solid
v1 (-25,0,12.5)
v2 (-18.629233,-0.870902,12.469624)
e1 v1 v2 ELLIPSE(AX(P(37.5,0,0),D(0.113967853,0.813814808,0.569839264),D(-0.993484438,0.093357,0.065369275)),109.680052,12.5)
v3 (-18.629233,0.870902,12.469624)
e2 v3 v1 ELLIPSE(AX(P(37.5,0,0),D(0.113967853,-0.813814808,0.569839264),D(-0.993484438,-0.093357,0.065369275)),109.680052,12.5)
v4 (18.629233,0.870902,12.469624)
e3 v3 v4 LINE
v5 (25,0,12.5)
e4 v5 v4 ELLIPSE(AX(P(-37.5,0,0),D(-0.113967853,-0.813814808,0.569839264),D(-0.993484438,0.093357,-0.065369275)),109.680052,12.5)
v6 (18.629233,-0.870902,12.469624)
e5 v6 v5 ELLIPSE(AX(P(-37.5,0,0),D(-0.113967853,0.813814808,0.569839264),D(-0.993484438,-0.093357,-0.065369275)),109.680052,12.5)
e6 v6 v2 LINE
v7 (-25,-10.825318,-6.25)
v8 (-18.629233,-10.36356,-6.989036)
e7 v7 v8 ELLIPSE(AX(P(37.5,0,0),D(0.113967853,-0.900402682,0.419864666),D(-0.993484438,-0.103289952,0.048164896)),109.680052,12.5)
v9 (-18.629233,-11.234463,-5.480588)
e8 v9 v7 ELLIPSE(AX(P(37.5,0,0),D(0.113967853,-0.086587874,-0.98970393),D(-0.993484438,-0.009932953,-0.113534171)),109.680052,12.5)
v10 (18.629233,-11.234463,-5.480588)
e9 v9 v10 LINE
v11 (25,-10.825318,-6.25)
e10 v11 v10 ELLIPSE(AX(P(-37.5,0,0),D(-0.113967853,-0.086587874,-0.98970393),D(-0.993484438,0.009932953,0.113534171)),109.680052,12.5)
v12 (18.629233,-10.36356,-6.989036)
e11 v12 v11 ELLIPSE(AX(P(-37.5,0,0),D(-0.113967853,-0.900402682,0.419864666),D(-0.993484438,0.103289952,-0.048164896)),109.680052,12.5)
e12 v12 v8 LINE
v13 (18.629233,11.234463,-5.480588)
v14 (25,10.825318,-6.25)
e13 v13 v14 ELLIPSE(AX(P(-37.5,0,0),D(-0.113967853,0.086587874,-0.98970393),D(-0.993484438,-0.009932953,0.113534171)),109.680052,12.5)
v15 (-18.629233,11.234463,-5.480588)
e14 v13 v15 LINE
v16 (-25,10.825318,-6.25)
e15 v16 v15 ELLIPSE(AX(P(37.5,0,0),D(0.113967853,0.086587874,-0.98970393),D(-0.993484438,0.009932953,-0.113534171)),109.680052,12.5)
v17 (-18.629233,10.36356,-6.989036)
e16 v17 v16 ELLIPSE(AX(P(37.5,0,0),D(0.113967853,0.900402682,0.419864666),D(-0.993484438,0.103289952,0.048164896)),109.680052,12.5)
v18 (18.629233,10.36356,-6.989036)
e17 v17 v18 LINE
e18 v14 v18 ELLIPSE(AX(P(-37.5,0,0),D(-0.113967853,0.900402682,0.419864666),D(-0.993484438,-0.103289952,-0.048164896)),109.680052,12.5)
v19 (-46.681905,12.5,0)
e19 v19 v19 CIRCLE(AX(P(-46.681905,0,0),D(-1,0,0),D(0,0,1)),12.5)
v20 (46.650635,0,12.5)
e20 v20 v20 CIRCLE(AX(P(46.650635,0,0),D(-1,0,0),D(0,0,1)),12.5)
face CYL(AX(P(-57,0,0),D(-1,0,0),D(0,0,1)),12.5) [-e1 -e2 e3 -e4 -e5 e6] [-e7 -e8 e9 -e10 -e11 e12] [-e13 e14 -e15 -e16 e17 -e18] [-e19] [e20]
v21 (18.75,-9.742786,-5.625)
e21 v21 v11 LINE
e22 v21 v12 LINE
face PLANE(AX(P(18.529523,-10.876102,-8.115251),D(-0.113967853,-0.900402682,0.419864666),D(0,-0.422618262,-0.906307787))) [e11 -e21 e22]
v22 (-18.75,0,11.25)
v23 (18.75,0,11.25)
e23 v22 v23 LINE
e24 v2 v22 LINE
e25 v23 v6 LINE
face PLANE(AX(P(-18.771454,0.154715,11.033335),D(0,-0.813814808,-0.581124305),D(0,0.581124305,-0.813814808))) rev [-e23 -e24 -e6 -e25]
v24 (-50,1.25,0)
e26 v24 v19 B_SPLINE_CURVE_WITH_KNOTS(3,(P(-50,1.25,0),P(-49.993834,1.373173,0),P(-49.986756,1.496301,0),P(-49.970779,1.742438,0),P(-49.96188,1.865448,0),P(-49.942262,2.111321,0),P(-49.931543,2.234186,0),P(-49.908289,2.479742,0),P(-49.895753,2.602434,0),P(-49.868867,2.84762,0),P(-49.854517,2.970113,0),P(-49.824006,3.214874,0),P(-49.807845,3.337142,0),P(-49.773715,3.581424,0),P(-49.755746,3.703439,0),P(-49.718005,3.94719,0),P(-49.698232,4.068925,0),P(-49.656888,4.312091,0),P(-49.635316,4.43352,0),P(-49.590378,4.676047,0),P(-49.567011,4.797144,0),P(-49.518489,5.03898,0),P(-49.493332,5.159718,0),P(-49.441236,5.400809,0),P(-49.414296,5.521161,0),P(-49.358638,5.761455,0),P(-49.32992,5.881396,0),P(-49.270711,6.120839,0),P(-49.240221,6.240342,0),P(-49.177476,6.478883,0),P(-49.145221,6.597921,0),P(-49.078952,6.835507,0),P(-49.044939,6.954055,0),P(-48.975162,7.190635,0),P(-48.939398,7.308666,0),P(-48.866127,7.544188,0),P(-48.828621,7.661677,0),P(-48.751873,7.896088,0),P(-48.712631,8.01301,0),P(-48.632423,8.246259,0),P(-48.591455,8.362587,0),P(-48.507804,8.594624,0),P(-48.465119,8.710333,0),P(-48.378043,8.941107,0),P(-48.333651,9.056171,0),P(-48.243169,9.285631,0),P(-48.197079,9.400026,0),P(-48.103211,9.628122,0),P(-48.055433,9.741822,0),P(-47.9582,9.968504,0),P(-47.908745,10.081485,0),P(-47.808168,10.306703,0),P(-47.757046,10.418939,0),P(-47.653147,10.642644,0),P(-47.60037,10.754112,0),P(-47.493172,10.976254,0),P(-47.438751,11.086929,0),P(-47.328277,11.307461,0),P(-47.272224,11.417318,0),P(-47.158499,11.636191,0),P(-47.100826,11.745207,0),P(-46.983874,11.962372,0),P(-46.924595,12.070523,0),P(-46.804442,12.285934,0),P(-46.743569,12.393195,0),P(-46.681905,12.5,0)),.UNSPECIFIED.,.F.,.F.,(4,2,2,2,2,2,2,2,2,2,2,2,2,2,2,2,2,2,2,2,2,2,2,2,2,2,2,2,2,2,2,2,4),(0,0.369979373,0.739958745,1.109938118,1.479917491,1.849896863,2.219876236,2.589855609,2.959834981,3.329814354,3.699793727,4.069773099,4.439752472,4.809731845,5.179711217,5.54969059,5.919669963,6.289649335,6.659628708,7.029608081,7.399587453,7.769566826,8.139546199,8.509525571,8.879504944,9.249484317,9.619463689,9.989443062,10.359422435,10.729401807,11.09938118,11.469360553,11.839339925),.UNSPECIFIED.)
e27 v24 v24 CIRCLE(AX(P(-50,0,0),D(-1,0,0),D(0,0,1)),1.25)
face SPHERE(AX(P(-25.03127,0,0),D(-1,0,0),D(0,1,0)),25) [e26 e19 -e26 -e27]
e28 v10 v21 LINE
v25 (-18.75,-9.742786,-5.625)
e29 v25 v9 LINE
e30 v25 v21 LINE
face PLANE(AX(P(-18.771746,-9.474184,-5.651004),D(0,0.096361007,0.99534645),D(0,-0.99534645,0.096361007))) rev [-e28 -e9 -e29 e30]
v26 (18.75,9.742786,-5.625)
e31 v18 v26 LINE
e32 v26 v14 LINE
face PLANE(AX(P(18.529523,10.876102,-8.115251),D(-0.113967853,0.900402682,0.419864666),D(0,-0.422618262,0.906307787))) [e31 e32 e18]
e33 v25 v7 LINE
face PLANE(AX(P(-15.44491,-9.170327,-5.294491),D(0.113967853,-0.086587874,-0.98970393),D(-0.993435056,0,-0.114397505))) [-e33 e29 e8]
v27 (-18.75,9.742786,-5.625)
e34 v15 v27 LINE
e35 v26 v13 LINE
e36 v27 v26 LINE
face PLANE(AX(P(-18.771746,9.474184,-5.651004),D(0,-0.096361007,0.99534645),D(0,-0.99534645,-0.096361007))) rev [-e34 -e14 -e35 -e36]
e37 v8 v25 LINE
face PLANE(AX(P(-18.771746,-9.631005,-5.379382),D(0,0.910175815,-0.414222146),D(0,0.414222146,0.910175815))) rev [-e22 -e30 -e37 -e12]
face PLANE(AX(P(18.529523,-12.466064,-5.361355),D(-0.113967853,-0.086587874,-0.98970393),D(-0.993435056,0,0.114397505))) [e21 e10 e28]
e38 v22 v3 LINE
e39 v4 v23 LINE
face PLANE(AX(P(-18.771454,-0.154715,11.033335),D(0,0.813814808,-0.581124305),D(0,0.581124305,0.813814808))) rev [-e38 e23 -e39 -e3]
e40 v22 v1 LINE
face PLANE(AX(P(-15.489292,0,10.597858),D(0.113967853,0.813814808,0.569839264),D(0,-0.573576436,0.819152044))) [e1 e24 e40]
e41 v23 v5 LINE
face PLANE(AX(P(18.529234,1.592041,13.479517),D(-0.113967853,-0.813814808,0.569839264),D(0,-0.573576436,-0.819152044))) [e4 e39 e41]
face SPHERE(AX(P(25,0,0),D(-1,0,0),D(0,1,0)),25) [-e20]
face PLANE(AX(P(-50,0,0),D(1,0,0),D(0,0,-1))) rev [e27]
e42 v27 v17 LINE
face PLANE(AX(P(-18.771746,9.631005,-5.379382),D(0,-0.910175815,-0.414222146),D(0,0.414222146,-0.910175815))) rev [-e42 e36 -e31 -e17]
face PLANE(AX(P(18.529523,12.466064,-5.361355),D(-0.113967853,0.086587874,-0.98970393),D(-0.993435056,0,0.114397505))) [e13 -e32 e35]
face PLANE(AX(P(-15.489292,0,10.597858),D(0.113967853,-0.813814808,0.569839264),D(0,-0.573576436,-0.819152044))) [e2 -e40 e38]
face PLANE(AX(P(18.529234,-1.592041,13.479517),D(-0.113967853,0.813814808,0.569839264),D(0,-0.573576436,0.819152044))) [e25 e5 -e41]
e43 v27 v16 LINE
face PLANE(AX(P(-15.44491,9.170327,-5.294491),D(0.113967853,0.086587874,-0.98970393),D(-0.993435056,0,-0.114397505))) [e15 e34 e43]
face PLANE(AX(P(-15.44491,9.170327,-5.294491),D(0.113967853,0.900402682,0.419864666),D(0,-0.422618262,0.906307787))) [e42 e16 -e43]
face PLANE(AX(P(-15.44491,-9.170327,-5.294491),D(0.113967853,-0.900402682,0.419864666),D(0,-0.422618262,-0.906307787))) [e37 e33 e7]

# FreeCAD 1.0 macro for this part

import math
import FreeCAD as App
import Part
import Sketcher
Q = App.Units.Quantity


def add_polygon(sketch, points):
    """Adds a closed chain of lines whose ends are joined by coincident constraints."""
    first, n = sketch.GeometryCount, len(points)
    for a, b in zip(points, points[1:] + points[:1]):
        sketch.addGeometry(Part.LineSegment(App.Vector(*a, 0), App.Vector(*b, 0)), False)
    for i in range(n):
        sketch.addConstraint(Sketcher.Constraint("Coincident", first + i, 2, first + (i + 1) % n, 1))

doc = App.newDocument("Part")
body = doc.addObject("PartDesign::Body", "Body")

sketch1 = body.newObject("Sketcher::SketchObject", "Sketch")
sketch1.AttachmentSupport = (doc.getObject("XY_Plane"), [""])
sketch1.MapMode = "FlatFace"
sketch1.addGeometry([
    Part.LineSegment(App.Vector(-50, 1.2, 0), App.Vector(-50, 0, 0)),
    Part.LineSegment(App.Vector(-50, 0, 0), App.Vector(50, 0, 0)),
    Part.ArcOfCircle(Part.Circle(App.Vector(25, 0, 0), App.Vector(0, 0, 1), 25), math.radians(0), math.radians(30)),
    Part.LineSegment(App.Vector(46.7, 12.5, 0), App.Vector(-46.7, 12.5, 0)),
    Part.ArcOfCircle(Part.Circle(App.Vector(-25, 0, 0), App.Vector(0, 0, 1), 25), math.radians(150), math.radians(177)),
], False)
sketch1.addConstraint([
    Sketcher.Constraint("Coincident", 0, 2, 1, 1),
    Sketcher.Constraint("Coincident", 1, 2, 2, 1),
    Sketcher.Constraint("Coincident", 2, 2, 3, 1),
    Sketcher.Constraint("Coincident", 3, 2, 4, 1),
    Sketcher.Constraint("Coincident", 4, 2, 0, 1),
    Sketcher.Constraint("Vertical", 0),
    Sketcher.Constraint("Horizontal", 1),
    Sketcher.Constraint("Horizontal", 3),
    Sketcher.Constraint("Equal", 2, 4),
    Sketcher.Constraint("Symmetric", 0, 2, 1, 2, -1, 1),
    Sketcher.Constraint("PointOnObject", 2, 3, -1),
    Sketcher.Constraint("PointOnObject", 4, 3, -1),
    Sketcher.Constraint("Radius", 2, 25.0),
    Sketcher.Constraint("DistanceX", 1, 1, 1, 2, 100.0),
    Sketcher.Constraint("DistanceY", 0, 2, 0, 1, 1.25),
    Sketcher.Constraint("DistanceY", -1, 1, 2, 2, 12.5),
])
revolution = body.newObject("PartDesign::Revolution", "Revolution")
revolution.Profile = sketch1
revolution.ReferenceAxis = (sketch1, ["H_Axis"])
revolution.Angle = 360

sketch2 = body.newObject("Sketcher::SketchObject", "Sketch001")
sketch2.AttachmentSupport = (doc.getObject("YZ_Plane"), [""])
sketch2.MapMode = "FlatFace"
sketch2.AttachmentOffset = App.Placement(App.Vector(0, 0, -25), App.Rotation())
add_polygon(sketch2, [(0, 12.5), (1.3, 14.4), (-1.3, 14.4)])
sketch2.addConstraint([
    Sketcher.Constraint("Horizontal", 1),
    Sketcher.Constraint("PointOnObject", 2, 2, -2),
    Sketcher.Constraint("Equal", 0, 2),
    Sketcher.Constraint("Angle", 0, Q("55 deg")),
    Sketcher.Constraint("DistanceY", -1, 1, 2, 2, 12.5),
    Sketcher.Constraint("DistanceX", 1, 2, 1, 1, 2.630482),
])

sketch3 = body.newObject("Sketcher::SketchObject", "Sketch002")
sketch3.AttachmentSupport = (doc.getObject("XZ_Plane"), [""])
sketch3.MapMode = "FlatFace"
sketch3.addGeometry([
    Part.LineSegment(App.Vector(-25, 12, 0), App.Vector(-19, 11, 0)),
    Part.LineSegment(App.Vector(-19, 11, 0), App.Vector(19, 11, 0)),
    Part.LineSegment(App.Vector(19, 11, 0), App.Vector(25, 12, 0)),
], False)
sketch3.addConstraint([
    Sketcher.Constraint("Coincident", 0, 2, 1, 1),
    Sketcher.Constraint("Coincident", 1, 2, 2, 1),
    Sketcher.Constraint("Horizontal", 1),
    Sketcher.Constraint("Symmetric", 0, 1, 2, 2, -2),
    Sketcher.Constraint("Equal", 0, 2),
    Sketcher.Constraint("DistanceX", 1, 1, 1, 2, 37.5),
    Sketcher.Constraint("DistanceX", 0, 1, -1, 1, 25.0),
    Sketcher.Constraint("DistanceY", -1, 1, 0, 1, 12.5),
    Sketcher.Constraint("DistanceY", -1, 1, 0, 2, 11.25),
])
doc.recompute()

subtractivepipe = body.newObject("PartDesign::SubtractivePipe", "SubtractivePipe")
subtractivepipe.Profile = sketch2
subtractivepipe.Spine = (sketch3, ["Edge1", "Edge2", "Edge3"])
subtractivepipe.Transition = "Right corner"
doc.recompute()

polarpattern = body.newObject("PartDesign::PolarPattern", "PolarPattern")
polarpattern.Originals = [subtractivepipe]
polarpattern.Axis = (doc.getObject("X_Axis"), [""])
polarpattern.Angle = 360
polarpattern.Occurrences = 3
body.Tip = polarpattern

doc.recompute()
